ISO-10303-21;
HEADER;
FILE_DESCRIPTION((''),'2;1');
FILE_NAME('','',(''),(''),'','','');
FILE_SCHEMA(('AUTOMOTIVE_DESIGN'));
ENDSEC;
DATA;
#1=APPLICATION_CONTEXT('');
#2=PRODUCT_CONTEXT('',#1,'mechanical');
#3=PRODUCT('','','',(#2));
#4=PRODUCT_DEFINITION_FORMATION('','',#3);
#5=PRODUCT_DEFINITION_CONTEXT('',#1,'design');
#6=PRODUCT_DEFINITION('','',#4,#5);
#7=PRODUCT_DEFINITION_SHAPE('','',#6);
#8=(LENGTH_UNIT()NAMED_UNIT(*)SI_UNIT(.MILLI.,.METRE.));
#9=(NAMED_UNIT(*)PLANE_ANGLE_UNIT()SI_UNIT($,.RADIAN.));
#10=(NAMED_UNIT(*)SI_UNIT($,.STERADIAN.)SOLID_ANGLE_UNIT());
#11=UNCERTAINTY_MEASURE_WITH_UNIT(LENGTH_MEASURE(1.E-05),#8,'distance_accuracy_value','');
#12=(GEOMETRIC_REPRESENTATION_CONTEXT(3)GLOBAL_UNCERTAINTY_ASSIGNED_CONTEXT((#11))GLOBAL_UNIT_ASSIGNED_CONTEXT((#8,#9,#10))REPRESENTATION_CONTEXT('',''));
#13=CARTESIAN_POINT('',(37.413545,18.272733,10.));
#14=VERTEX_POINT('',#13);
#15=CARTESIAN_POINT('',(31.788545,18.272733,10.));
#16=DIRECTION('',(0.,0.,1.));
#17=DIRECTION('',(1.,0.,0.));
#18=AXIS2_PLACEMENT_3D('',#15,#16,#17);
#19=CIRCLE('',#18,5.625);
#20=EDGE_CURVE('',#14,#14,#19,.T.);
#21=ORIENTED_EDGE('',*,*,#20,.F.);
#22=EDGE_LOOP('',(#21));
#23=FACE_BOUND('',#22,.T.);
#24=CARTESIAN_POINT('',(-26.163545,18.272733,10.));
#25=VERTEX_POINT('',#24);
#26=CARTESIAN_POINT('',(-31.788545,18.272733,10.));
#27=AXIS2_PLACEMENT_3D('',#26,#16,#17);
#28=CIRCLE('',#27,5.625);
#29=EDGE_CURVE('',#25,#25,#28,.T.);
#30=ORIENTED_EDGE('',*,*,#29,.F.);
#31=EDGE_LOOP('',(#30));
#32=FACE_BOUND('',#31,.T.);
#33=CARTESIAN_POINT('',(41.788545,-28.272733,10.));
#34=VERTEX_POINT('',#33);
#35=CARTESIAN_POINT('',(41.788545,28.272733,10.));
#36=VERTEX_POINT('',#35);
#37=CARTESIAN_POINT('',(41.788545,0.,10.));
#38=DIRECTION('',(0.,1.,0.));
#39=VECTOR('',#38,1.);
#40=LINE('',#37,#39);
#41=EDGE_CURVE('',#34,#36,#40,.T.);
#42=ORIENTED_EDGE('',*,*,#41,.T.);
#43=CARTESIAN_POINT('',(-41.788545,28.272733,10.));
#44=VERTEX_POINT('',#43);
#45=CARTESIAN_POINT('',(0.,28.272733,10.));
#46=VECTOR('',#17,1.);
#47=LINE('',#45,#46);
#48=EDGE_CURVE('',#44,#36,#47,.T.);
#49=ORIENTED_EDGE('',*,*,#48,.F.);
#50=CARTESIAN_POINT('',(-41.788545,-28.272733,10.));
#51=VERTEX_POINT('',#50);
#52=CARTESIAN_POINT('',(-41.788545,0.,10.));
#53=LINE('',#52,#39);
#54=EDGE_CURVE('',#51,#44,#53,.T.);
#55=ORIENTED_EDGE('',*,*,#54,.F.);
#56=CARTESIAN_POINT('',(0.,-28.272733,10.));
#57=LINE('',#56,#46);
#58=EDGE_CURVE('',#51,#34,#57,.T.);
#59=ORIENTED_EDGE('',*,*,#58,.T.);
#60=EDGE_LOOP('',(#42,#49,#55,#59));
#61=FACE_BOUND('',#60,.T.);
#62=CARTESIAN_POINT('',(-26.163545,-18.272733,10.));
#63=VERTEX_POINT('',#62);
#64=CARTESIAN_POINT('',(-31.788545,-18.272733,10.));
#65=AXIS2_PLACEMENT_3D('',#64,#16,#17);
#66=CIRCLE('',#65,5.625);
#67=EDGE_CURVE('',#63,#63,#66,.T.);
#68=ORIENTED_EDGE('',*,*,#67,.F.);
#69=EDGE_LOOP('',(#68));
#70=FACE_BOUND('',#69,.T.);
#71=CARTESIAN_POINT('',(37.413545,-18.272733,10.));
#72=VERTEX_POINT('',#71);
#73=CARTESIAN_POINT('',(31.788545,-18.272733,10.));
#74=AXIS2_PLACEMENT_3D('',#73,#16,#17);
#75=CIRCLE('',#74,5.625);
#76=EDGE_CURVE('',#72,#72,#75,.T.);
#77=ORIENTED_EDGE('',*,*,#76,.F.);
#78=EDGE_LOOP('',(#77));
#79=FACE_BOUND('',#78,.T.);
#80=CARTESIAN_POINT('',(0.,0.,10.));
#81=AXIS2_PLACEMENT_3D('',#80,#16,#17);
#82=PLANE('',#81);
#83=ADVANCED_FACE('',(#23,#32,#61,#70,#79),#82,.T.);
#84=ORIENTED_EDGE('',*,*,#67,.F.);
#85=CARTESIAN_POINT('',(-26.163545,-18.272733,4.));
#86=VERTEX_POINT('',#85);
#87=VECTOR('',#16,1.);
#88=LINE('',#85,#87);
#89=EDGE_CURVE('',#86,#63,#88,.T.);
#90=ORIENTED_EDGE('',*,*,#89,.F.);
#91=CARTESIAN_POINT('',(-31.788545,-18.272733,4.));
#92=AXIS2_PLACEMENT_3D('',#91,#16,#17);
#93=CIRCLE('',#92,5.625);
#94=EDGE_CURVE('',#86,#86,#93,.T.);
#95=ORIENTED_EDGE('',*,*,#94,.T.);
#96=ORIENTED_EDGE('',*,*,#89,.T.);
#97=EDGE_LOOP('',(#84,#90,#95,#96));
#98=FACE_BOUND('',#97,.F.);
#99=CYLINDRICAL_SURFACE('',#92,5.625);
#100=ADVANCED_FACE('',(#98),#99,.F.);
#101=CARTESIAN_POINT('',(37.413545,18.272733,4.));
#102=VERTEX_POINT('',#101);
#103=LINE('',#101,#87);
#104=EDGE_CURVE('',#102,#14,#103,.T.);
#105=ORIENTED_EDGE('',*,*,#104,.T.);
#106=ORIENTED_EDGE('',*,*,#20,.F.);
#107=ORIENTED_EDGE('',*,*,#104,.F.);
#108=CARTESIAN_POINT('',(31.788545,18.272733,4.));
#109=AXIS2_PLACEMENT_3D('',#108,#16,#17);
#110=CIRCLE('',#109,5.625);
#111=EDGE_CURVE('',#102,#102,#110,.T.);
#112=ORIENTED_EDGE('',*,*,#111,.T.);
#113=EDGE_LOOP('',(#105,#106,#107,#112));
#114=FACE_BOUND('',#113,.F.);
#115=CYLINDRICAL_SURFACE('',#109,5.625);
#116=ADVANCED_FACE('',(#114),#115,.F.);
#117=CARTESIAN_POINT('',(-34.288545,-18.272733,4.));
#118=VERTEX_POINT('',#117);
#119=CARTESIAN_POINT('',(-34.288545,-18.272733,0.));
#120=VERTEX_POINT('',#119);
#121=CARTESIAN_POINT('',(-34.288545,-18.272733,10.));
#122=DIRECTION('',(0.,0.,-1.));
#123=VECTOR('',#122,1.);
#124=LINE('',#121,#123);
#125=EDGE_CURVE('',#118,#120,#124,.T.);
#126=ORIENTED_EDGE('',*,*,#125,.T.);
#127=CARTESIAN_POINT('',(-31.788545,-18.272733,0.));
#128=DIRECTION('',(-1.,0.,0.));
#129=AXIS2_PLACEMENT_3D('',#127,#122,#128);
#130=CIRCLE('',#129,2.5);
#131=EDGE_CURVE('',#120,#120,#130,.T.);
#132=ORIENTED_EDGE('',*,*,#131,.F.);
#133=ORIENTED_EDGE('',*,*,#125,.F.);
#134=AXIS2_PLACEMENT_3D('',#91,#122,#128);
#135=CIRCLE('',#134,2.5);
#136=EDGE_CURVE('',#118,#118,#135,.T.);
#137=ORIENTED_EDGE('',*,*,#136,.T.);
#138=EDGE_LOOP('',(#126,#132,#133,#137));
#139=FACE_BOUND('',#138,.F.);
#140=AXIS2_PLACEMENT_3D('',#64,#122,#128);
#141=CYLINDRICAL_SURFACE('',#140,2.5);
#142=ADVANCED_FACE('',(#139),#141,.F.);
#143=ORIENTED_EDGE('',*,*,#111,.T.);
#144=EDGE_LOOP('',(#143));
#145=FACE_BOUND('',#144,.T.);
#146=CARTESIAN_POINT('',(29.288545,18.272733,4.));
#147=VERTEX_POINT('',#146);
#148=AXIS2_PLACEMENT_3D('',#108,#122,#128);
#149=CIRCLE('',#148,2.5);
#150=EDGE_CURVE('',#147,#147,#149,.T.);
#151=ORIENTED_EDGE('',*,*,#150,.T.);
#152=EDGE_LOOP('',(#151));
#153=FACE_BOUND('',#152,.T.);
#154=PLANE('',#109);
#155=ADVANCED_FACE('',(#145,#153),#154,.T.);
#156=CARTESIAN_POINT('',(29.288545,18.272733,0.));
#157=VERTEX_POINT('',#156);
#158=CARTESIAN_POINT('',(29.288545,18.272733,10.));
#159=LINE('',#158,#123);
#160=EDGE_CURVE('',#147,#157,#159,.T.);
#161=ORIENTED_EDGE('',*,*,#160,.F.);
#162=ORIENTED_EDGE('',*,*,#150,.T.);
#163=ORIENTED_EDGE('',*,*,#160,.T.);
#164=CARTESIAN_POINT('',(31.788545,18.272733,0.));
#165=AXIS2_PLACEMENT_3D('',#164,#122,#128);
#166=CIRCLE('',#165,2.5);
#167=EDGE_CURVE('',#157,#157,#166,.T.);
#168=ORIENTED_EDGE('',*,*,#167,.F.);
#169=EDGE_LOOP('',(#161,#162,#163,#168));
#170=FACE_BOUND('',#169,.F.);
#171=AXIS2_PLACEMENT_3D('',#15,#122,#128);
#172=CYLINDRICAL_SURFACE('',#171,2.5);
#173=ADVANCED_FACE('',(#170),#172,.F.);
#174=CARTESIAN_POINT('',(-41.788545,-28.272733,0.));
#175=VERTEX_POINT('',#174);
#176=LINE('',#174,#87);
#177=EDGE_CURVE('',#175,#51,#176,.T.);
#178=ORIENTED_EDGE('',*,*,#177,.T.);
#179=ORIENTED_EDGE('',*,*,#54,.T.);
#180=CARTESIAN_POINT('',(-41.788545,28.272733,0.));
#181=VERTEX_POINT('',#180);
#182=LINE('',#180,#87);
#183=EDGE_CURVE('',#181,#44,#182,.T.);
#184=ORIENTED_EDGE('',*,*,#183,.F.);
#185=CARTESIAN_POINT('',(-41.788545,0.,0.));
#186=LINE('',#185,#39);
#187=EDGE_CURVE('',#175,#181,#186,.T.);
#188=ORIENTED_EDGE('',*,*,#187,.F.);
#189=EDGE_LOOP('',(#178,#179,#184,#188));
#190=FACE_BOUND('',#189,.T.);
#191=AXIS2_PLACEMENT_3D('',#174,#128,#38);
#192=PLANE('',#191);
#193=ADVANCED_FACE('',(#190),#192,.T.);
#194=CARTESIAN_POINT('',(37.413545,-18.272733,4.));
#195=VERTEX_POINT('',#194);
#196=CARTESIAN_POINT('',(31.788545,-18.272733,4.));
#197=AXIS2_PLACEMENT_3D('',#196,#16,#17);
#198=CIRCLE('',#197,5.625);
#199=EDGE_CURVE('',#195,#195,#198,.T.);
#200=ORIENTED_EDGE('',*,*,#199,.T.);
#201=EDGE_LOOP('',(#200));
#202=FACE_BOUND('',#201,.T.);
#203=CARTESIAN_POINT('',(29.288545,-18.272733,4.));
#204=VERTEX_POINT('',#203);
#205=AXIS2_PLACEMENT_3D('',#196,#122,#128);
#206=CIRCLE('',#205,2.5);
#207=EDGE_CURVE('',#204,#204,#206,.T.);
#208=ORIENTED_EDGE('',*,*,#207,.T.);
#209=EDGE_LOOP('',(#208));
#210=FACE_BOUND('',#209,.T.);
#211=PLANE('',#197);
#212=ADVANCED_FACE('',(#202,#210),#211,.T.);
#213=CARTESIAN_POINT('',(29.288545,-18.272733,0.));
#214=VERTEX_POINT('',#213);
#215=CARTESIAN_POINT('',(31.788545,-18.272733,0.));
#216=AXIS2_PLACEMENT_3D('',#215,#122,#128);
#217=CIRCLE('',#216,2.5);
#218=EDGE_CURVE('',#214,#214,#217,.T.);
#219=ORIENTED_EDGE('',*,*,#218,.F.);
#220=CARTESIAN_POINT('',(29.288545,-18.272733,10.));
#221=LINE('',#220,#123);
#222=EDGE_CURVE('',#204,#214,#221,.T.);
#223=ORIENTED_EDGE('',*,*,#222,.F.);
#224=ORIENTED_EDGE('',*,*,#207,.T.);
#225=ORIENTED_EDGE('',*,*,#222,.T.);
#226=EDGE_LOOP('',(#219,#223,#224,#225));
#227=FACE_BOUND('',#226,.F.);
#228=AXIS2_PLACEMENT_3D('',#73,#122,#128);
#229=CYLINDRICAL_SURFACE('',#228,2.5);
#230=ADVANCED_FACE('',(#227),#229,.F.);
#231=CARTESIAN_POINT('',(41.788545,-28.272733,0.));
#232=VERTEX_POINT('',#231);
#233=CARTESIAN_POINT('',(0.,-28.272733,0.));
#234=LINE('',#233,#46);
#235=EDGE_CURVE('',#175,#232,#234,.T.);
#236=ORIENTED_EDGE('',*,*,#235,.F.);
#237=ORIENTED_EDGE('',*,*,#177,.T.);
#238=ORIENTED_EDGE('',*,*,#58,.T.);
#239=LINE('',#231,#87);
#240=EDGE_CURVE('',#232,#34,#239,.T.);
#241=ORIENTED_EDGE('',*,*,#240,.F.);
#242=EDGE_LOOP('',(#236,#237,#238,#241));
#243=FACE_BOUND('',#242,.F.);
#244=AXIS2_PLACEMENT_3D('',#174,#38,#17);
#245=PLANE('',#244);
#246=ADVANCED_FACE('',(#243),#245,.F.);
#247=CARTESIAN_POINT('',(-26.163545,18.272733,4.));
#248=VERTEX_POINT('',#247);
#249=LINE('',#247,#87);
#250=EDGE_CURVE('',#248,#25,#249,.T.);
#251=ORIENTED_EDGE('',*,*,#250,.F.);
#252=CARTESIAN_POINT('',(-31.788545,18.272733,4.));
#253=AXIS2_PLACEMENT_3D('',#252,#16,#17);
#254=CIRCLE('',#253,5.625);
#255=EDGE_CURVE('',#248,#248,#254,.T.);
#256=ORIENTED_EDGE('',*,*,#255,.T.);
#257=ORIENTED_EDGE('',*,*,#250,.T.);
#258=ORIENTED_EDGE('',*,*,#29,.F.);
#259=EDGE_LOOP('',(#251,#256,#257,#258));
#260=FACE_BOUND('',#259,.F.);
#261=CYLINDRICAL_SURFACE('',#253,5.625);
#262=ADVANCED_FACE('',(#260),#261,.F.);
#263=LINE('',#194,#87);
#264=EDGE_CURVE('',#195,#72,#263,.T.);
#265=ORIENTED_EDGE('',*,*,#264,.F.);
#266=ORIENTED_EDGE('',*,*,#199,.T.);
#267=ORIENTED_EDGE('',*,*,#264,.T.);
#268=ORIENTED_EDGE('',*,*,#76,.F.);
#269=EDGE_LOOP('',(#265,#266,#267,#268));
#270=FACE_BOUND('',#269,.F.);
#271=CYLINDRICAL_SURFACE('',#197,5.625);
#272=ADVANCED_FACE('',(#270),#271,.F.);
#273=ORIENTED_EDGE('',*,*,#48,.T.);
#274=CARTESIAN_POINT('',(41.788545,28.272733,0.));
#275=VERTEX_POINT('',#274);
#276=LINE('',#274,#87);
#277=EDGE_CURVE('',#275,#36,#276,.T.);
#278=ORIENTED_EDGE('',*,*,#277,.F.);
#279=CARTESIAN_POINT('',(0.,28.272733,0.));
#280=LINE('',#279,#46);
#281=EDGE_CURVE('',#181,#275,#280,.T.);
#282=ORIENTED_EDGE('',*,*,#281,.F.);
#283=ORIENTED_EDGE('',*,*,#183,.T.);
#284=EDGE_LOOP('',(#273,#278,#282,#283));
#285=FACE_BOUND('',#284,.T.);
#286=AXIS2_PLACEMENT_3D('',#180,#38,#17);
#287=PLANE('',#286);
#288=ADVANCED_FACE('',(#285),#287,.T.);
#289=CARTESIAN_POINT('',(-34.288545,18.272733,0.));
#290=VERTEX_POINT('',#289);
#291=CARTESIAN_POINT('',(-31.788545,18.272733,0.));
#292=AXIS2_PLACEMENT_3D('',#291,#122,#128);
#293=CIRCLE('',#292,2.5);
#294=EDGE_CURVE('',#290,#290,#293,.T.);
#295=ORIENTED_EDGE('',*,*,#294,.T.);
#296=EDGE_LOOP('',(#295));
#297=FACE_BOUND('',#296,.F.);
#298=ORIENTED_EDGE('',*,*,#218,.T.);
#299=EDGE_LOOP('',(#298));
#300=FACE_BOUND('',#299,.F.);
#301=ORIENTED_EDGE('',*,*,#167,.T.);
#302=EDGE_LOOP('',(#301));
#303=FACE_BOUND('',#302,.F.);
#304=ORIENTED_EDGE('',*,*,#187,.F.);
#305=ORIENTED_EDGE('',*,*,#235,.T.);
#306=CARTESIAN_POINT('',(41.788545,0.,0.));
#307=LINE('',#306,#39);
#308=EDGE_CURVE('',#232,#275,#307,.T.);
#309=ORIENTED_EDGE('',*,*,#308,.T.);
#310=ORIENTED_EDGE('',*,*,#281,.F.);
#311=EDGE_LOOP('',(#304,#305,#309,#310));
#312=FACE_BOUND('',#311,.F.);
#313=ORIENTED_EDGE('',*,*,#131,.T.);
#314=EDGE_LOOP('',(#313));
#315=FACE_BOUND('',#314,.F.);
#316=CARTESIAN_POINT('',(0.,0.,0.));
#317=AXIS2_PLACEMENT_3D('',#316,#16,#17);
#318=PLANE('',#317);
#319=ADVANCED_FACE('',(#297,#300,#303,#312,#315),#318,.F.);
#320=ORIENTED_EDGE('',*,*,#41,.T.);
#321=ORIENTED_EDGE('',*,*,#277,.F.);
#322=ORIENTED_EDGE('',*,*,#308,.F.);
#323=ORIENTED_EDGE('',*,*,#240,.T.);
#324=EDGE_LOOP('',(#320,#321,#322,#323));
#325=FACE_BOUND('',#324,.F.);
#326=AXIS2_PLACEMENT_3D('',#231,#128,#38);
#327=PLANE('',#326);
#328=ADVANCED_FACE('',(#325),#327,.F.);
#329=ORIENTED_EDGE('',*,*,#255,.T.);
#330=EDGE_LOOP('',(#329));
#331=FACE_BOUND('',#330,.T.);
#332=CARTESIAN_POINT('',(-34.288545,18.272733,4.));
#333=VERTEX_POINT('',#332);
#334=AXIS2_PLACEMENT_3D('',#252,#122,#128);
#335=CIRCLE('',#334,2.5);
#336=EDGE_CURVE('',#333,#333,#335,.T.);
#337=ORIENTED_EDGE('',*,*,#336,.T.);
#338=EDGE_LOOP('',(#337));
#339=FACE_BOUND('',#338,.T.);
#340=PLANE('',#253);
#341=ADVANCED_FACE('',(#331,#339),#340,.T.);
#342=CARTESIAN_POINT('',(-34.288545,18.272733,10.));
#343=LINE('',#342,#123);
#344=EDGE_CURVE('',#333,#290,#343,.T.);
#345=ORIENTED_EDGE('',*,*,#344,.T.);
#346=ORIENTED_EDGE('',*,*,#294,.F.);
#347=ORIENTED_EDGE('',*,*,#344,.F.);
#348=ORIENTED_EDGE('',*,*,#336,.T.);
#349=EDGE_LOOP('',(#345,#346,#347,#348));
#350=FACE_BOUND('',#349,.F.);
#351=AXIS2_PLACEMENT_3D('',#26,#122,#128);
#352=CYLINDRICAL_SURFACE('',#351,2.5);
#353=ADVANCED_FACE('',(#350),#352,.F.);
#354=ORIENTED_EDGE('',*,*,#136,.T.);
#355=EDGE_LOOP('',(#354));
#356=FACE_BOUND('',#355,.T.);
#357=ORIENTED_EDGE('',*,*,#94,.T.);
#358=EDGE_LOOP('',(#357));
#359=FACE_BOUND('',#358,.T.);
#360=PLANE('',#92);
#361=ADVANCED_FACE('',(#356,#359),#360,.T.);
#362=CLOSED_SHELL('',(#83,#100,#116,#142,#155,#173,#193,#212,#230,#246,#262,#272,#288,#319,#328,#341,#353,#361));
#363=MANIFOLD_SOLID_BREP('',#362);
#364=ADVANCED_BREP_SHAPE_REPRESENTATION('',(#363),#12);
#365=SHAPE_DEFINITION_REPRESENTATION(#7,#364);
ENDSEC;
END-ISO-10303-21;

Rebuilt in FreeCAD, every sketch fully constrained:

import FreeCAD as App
import Part
import Sketcher
from FreeCAD import Vector


def add_polygon(sketch, points):
    """Adds a closed chain of lines whose ends are joined by coincident constraints."""
    first, n = sketch.GeometryCount, len(points)
    for a, b in zip(points, points[1:] + points[:1]):
        sketch.addGeometry(Part.LineSegment(App.Vector(*a, 0), App.Vector(*b, 0)), False)
    for i in range(n):
        sketch.addConstraint(Sketcher.Constraint("Coincident", first + i, 2, first + (i + 1) % n, 1))

doc = App.newDocument("Part")
body = doc.addObject("PartDesign::Body", "Body")

# Sketch on XY plane
sketch1 = doc.addObject("Sketcher::SketchObject", "Sketch")
body.addObject(sketch1)
sketch1.AttachmentSupport = (doc.XY_Plane, [""])
sketch1.MapMode = "FlatFace"
add_polygon(sketch1, [(-42, 28), (-42, -28), (42, -28), (42, 28)])  # lines 0-3
sketch1.addConstraint([
    Sketcher.Constraint("Vertical", 0),
    Sketcher.Constraint("Horizontal", 1),
    Sketcher.Constraint("Vertical", 2),
    Sketcher.Constraint("Horizontal", 3),
    Sketcher.Constraint("Symmetric", 0, 2, 2, 2, -1, 1),
    Sketcher.Constraint("DistanceX", 1, 1, 1, 2, 83.577089),
    Sketcher.Constraint("DistanceY", 0, 2, 0, 1, 56.545466),
])
pad1 = doc.addObject("PartDesign::Pad", "Pad")
body.addObject(pad1)
pad1.Profile = sketch1
pad1.Length = 10

# Sketch on XY plane
sketch2 = doc.addObject("Sketcher::SketchObject", "Sketch001")
body.addObject(sketch2)
sketch2.AttachmentSupport = (doc.XY_Plane, [""])
sketch2.MapMode = "FlatFace"
sketch2.AttachmentOffset = App.Placement(Vector(0, 0, 10), App.Rotation())
sketch2.addGeometry([
    Part.Circle(Vector(-31.8, 18.3, 0), Vector(0, 0, 1), 2.5),
    Part.Circle(Vector(31.8, 18.3, 0), Vector(0, 0, 1), 2.5),
    Part.Circle(Vector(31.8, -18.3, 0), Vector(0, 0, 1), 2.5),
    Part.Circle(Vector(-31.8, -18.3, 0), Vector(0, 0, 1), 2.5),
], False)
sketch2.addConstraint([
    Sketcher.Constraint("Equal", 0, 1),
    Sketcher.Constraint("Equal", 1, 2),
    Sketcher.Constraint("Equal", 2, 3),
    Sketcher.Constraint("Symmetric", 0, 3, 2, 3, -1, 1),
    Sketcher.Constraint("Symmetric", 1, 3, 3, 3, -1, 1),
    Sketcher.Constraint("Symmetric", 0, 3, 1, 3, -2),
    Sketcher.Constraint("Diameter", 0, 5.0),
    Sketcher.Constraint("DistanceX", 0, 3, 1, 3, 63.577089),
    Sketcher.Constraint("DistanceY", -1, 1, 0, 3, 18.272733),
])
doc.recompute()
hole = doc.addObject("PartDesign::Hole", "Hole")
body.addObject(hole)
hole.Profile = sketch2
hole.ThreadType = "None"
hole.Diameter = 5
hole.DepthType = "ThroughAll"
hole.HoleCutType = "Counterbore"
hole.HoleCutDiameter = 11.25
hole.HoleCutDepth = 6

doc.recompute()
